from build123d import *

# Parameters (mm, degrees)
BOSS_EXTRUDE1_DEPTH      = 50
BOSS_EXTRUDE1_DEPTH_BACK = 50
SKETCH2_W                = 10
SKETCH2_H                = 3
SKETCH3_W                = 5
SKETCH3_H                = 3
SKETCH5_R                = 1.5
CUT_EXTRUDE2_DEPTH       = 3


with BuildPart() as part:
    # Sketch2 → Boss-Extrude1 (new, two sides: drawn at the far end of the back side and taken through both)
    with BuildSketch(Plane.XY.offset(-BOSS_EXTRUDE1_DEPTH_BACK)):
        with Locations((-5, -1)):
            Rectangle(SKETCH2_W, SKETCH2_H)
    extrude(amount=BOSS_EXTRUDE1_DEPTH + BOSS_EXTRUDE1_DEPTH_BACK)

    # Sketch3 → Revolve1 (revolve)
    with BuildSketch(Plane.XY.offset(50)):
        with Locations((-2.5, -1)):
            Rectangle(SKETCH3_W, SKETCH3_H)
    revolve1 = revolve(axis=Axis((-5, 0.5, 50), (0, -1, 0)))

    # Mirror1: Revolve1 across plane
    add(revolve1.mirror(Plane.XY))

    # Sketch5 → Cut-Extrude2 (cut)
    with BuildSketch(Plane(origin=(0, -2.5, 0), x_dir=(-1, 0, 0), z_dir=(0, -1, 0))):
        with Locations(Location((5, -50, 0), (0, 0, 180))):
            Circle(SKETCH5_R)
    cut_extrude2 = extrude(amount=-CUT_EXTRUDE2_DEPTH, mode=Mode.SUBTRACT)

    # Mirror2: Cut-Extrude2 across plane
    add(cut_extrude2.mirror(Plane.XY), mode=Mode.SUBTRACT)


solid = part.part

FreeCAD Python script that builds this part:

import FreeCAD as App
import Part
import Sketcher
from FreeCAD import Vector
Q = App.Units.Quantity


def add_polygon(sketch, points):
    """Adds a closed chain of lines whose ends are joined by coincident constraints."""
    first, n = sketch.GeometryCount, len(points)
    for a, b in zip(points, points[1:] + points[:1]):
        sketch.addGeometry(Part.LineSegment(App.Vector(*a, 0), App.Vector(*b, 0)), False)
    for i in range(n):
        sketch.addConstraint(Sketcher.Constraint("Coincident", first + i, 2, first + (i + 1) % n, 1))

doc = App.newDocument("Part")
params = doc.addObject("Spreadsheet::Sheet", "Params")
for row, (alias, value) in enumerate([
    ("sketch1_width", "10 mm"),
    ("sketch1_height", "3 mm"),
    ("pad1_length", "50 mm"),
    ("pad1_length2", "50 mm"),
    ("sketch2_width", "5 mm"),
    ("sketch2_height", "3 mm"),
    ("revolution_angle", "360 deg"),
    ("sketch3_diameter", "3 mm"),
    ("pocket1_length", "3 mm"),
], start=1):
    params.set(f"A{row}", alias)
    params.set(f"B{row}", "=" + value)
    params.setAlias(f"B{row}", alias)

body = doc.addObject("PartDesign::Body", "Body")

sketch1 = body.newObject("Sketcher::SketchObject", "Sketch")
sketch1.AttachmentSupport = (doc.getObject("XY_Plane"), [""])
sketch1.MapMode = "FlatFace"
add_polygon(sketch1, [(-10, 0.5), (-10, -2.5), (0, -2.5), (0, 0.5)])
sketch1.addConstraint([
    Sketcher.Constraint("Vertical", 0),
    Sketcher.Constraint("Horizontal", 1),
    Sketcher.Constraint("Vertical", 2),
    Sketcher.Constraint("Horizontal", 3),
    Sketcher.Constraint("PointOnObject", 1, 2, -2),
    Sketcher.Constraint("DistanceX", 1, 1, 1, 2, Q("10 mm")),
    Sketcher.Constraint("DistanceY", 0, 2, 0, 1, Q("3 mm")),
    Sketcher.Constraint("DistanceY", 0, 2, -1, 1, Q("2.5 mm")),
])
sketch1.setExpression("Constraints[9]", "Params.sketch1_width")
sketch1.setExpression("Constraints[10]", "Params.sketch1_height")
pad1 = body.newObject("PartDesign::Pad", "Pad")
pad1.Profile = sketch1
pad1.Type = "TwoLengths"
pad1.setExpression("Length", "Params.pad1_length")
pad1.setExpression("Length2", "Params.pad1_length2")

sketch2 = body.newObject("Sketcher::SketchObject", "Sketch001")
sketch2.AttachmentSupport = (doc.getObject("XY_Plane"), [""])
sketch2.MapMode = "FlatFace"
sketch2.AttachmentOffset = App.Placement(Vector(0, 0, 50), App.Rotation())
add_polygon(sketch2, [(-5, 0.5), (-5, -2.5), (0, -2.5), (0, 0.5)])
sketch2.addGeometry(Part.LineSegment(Vector(-5, 0.5, 0), Vector(-5, -2.5, 0)), True)
sketch2.addConstraint([
    Sketcher.Constraint("Vertical", 0),
    Sketcher.Constraint("Horizontal", 1),
    Sketcher.Constraint("Vertical", 2),
    Sketcher.Constraint("Horizontal", 3),
    Sketcher.Constraint("Vertical", 4),
    Sketcher.Constraint("Coincident", 4, 1, 3, 2),
    Sketcher.Constraint("PointOnObject", 1, 2, -2),
    Sketcher.Constraint("Horizontal", 1, 2, 4, 2),
    Sketcher.Constraint("DistanceX", 1, 1, 1, 2, Q("5 mm")),
    Sketcher.Constraint("DistanceY", 0, 2, 0, 1, Q("3 mm")),
    Sketcher.Constraint("DistanceY", 0, 2, -1, 1, Q("2.5 mm")),
])
sketch2.setExpression("Constraints[12]", "Params.sketch2_width")
sketch2.setExpression("Constraints[13]", "Params.sketch2_height")
revolution = body.newObject("PartDesign::Revolution", "Revolution")
revolution.Profile = sketch2
revolution.ReferenceAxis = (sketch2, ["Axis0"])
revolution.setExpression("Angle", "Params.revolution_angle")
doc.recompute()

mirrored = body.newObject("PartDesign::Mirrored", "Mirrored")
mirrored.Originals = [revolution]
mirrored.MirrorPlane = (doc.getObject("XY_Plane"), [""])
body.Tip = mirrored

sketch3 = body.newObject("Sketcher::SketchObject", "Sketch002")
sketch3.AttachmentSupport = (doc.getObject("XZ_Plane"), [""])
sketch3.MapMode = "FlatFace"
sketch3.AttachmentOffset = App.Placement(Vector(0, 0, 2.5), App.Rotation())
sketch3.addGeometry(Part.Circle(Vector(-5, 50, 0), Vector(0, 0, 1), 1.5), False)
sketch3.addConstraint([
    Sketcher.Constraint("Diameter", 0, Q("3 mm")),
    Sketcher.Constraint("DistanceX", 0, 3, -1, 1, Q("5 mm")),
    Sketcher.Constraint("DistanceY", -1, 1, 0, 3, Q("50 mm")),
])
sketch3.setExpression("Constraints[0]", "Params.sketch3_diameter")
pocket1 = body.newObject("PartDesign::Pocket", "Pocket")
pocket1.Profile = sketch3
pocket1.setExpression("Length", "Params.pocket1_length")
doc.recompute()

mirrored2 = body.newObject("PartDesign::Mirrored", "Mirrored001")
mirrored2.Originals = [pocket1]
mirrored2.MirrorPlane = (doc.getObject("XY_Plane"), [""])
body.Tip = mirrored2

doc.recompute()
